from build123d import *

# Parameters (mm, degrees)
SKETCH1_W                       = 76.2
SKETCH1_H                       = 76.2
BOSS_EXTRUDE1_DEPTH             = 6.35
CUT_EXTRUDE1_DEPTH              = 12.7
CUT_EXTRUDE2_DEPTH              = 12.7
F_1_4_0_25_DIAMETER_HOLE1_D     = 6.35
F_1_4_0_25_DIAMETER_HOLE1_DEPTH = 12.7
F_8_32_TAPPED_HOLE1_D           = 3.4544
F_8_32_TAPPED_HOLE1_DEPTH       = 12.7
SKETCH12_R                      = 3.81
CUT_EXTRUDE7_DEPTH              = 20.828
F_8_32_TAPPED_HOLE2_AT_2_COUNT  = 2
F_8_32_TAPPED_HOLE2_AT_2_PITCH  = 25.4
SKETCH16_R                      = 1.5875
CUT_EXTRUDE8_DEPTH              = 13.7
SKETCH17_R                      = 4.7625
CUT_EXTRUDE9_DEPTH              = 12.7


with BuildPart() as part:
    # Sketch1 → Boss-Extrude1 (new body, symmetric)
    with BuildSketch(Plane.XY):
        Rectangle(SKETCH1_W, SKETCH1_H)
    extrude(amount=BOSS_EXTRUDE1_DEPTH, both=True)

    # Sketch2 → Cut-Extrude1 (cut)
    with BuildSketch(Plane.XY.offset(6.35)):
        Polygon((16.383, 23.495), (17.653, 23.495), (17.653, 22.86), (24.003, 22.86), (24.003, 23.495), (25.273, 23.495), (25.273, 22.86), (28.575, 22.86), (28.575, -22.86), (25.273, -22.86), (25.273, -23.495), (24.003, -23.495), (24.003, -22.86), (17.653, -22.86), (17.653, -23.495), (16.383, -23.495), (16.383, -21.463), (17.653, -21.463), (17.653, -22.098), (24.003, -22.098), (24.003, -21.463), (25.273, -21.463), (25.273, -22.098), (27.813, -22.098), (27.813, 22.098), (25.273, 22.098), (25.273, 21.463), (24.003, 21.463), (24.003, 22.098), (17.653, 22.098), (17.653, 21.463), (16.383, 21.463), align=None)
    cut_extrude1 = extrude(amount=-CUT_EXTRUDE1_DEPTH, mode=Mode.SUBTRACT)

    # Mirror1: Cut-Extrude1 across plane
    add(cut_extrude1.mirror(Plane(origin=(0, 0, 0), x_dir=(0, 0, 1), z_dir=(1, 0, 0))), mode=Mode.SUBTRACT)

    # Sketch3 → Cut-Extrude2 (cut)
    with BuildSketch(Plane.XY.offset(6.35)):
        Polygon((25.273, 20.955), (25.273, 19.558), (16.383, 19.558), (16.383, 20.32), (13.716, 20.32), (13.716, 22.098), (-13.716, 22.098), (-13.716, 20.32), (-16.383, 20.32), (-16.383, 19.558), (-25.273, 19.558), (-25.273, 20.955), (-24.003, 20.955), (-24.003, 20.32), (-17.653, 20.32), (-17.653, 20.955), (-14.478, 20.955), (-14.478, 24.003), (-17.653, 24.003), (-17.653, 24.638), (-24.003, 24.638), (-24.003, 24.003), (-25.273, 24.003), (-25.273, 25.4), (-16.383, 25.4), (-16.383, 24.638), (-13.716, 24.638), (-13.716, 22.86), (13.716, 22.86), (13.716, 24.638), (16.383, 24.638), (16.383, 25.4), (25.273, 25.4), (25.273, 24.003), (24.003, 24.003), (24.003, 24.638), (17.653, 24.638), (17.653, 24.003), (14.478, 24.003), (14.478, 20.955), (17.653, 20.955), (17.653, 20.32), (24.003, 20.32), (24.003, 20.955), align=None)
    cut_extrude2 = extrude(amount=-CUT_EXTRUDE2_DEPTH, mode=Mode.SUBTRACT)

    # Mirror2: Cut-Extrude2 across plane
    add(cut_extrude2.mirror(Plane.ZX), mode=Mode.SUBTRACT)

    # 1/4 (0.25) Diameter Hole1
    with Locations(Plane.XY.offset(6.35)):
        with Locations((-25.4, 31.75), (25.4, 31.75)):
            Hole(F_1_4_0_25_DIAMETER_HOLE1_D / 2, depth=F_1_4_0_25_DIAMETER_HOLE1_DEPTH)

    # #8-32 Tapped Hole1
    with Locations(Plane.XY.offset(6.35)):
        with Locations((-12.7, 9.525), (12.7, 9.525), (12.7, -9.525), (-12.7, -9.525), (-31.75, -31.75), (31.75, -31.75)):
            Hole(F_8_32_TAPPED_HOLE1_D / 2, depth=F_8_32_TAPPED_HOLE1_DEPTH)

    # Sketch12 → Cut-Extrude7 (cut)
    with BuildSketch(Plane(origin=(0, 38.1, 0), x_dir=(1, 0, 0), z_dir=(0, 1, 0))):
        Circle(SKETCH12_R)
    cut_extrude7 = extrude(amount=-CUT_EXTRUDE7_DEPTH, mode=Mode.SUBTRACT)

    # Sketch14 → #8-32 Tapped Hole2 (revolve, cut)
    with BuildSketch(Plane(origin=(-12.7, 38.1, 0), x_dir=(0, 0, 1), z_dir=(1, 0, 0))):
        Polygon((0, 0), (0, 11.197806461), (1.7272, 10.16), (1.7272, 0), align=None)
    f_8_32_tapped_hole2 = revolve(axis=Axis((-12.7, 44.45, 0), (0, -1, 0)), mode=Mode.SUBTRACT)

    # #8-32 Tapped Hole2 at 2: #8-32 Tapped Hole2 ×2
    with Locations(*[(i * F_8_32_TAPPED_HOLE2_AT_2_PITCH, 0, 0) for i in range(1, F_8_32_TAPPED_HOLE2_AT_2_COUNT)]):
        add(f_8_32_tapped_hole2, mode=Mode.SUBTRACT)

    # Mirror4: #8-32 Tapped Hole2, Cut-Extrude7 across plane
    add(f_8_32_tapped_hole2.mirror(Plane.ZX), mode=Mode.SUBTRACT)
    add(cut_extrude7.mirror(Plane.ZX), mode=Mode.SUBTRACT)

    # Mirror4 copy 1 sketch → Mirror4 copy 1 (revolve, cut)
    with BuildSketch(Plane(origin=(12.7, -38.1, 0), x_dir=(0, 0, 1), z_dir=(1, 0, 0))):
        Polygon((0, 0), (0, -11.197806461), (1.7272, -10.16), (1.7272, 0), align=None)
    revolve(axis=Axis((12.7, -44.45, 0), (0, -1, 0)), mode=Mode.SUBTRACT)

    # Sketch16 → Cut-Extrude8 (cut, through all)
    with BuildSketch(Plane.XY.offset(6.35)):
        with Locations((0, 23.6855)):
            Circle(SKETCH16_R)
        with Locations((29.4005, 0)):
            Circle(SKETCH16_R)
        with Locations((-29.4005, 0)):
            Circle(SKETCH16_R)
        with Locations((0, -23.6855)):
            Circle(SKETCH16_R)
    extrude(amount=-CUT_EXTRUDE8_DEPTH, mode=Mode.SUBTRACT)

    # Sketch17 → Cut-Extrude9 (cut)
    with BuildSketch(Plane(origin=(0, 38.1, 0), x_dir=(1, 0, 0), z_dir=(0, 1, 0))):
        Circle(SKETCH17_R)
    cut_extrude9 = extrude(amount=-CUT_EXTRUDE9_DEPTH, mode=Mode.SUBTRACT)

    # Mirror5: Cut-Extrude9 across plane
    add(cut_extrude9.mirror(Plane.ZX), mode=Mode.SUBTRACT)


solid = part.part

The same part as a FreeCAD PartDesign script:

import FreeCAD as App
import Part
import Sketcher

V = App.Vector
Q = App.Units.Quantity

doc = App.newDocument("Part")
body = doc.addObject("PartDesign::Body", "Body")

# Sketch on XY plane
sketch1 = doc.addObject("Sketcher::SketchObject", "Sketch")
body.addObject(sketch1)
sketch1.AttachmentSupport = (doc.XY_Plane, [""])
sketch1.MapMode = "FlatFace"
sketch1.addGeometry([
    Part.LineSegment(V(-38, 38, 0), V(-38, -38, 0)),
    Part.LineSegment(V(-38, -38, 0), V(38, -38, 0)),
    Part.LineSegment(V(38, -38, 0), V(38, 38, 0)),
    Part.LineSegment(V(38, 38, 0), V(-38, 38, 0)),
], False)
sketch1.addConstraint([
    Sketcher.Constraint("Coincident", 0, 2, 1, 1),
    Sketcher.Constraint("Coincident", 1, 2, 2, 1),
    Sketcher.Constraint("Coincident", 2, 2, 3, 1),
    Sketcher.Constraint("Coincident", 3, 2, 0, 1),
    Sketcher.Constraint("Vertical", 0),
    Sketcher.Constraint("Horizontal", 1),
    Sketcher.Constraint("Vertical", 2),
    Sketcher.Constraint("Horizontal", 3),
    Sketcher.Constraint("Symmetric", 0, 2, 2, 2, -1, 1),
    Sketcher.Constraint("Equal", 3, 0),
    Sketcher.Constraint("DistanceX", 1, 1, 1, 2, Q("3 in")),
])
pad1 = doc.addObject("PartDesign::Pad", "Pad")
body.addObject(pad1)
pad1.Profile = sketch1
pad1.Length = Q("0.5 in")
pad1.Midplane = True

# Sketch on XY plane
sketch2 = doc.addObject("Sketcher::SketchObject", "Sketch001")
body.addObject(sketch2)
sketch2.AttachmentSupport = (doc.XY_Plane, [""])
sketch2.MapMode = "FlatFace"
sketch2.AttachmentOffset = App.Placement(V(0, 0, 0.25 * 25.4), App.Rotation())
sketch2.addGeometry([
    Part.LineSegment(V(17.7, 23.5, 0), V(16.4, 23.5, 0)),  # 0
    Part.LineSegment(V(16.4, 23.5, 0), V(16.4, 21.5, 0)),  # 1
    Part.LineSegment(V(16.4, 21.5, 0), V(17.7, 21.5, 0)),  # 2
    Part.LineSegment(V(17.7, 21.5, 0), V(17.7, 22.1, 0)),  # 3
    Part.LineSegment(V(17.7, 22.1, 0), V(24, 22.1, 0)),  # 4
    Part.LineSegment(V(24, 22.1, 0), V(24, 21.5, 0)),  # 5
    Part.LineSegment(V(24, 21.5, 0), V(25.3, 21.5, 0)),  # 6
    Part.LineSegment(V(25.3, 21.5, 0), V(25.3, 22.1, 0)),  # 7
    Part.LineSegment(V(25.3, 22.1, 0), V(27.8, 22.1, 0)),  # 8
    Part.LineSegment(V(27.8, 22.1, 0), V(27.8, -22.1, 0)),  # 9
    Part.LineSegment(V(27.8, -22.1, 0), V(25.3, -22.1, 0)),  # 10
    Part.LineSegment(V(25.3, -22.1, 0), V(25.3, -21.5, 0)),  # 11
    Part.LineSegment(V(25.3, -21.5, 0), V(24, -21.5, 0)),  # 12
    Part.LineSegment(V(24, -21.5, 0), V(24, -22.1, 0)),  # 13
    Part.LineSegment(V(24, -22.1, 0), V(17.7, -22.1, 0)),  # 14
    Part.LineSegment(V(17.7, -22.1, 0), V(17.7, -21.5, 0)),  # 15
    Part.LineSegment(V(17.7, -21.5, 0), V(16.4, -21.5, 0)),  # 16
    Part.LineSegment(V(16.4, -21.5, 0), V(16.4, -23.5, 0)),  # 17
    Part.LineSegment(V(16.4, -23.5, 0), V(17.7, -23.5, 0)),  # 18
    Part.LineSegment(V(17.7, -23.5, 0), V(17.7, -22.9, 0)),  # 19
    Part.LineSegment(V(17.7, -22.9, 0), V(24, -22.9, 0)),  # 20
    Part.LineSegment(V(24, -22.9, 0), V(24, -23.5, 0)),  # 21
    Part.LineSegment(V(24, -23.5, 0), V(25.3, -23.5, 0)),  # 22
    Part.LineSegment(V(25.3, -23.5, 0), V(25.3, -22.9, 0)),  # 23
    Part.LineSegment(V(25.3, -22.9, 0), V(28.6, -22.9, 0)),  # 24
    Part.LineSegment(V(28.6, -22.9, 0), V(28.6, 22.9, 0)),  # 25
    Part.LineSegment(V(28.6, 22.9, 0), V(25.3, 22.9, 0)),  # 26
    Part.LineSegment(V(25.3, 22.9, 0), V(25.3, 23.5, 0)),  # 27
    Part.LineSegment(V(25.3, 23.5, 0), V(24, 23.5, 0)),  # 28
    Part.LineSegment(V(24, 23.5, 0), V(24, 22.9, 0)),  # 29
    Part.LineSegment(V(24, 22.9, 0), V(17.7, 22.9, 0)),  # 30
    Part.LineSegment(V(17.7, 22.9, 0), V(17.7, 23.5, 0)),  # 31
], False)
sketch2.addConstraint([
    Sketcher.Constraint("Coincident", 0, 2, 1, 1),
    Sketcher.Constraint("Coincident", 1, 2, 2, 1),
    Sketcher.Constraint("Coincident", 2, 2, 3, 1),
    Sketcher.Constraint("Coincident", 3, 2, 4, 1),
    Sketcher.Constraint("Coincident", 4, 2, 5, 1),
    Sketcher.Constraint("Coincident", 5, 2, 6, 1),
    Sketcher.Constraint("Coincident", 6, 2, 7, 1),
    Sketcher.Constraint("Coincident", 7, 2, 8, 1),
    Sketcher.Constraint("Coincident", 8, 2, 9, 1),
    Sketcher.Constraint("Coincident", 9, 2, 10, 1),
    Sketcher.Constraint("Coincident", 10, 2, 11, 1),
    Sketcher.Constraint("Coincident", 11, 2, 12, 1),
    Sketcher.Constraint("Coincident", 12, 2, 13, 1),
    Sketcher.Constraint("Coincident", 13, 2, 14, 1),
    Sketcher.Constraint("Coincident", 14, 2, 15, 1),
    Sketcher.Constraint("Coincident", 15, 2, 16, 1),
    Sketcher.Constraint("Coincident", 16, 2, 17, 1),
    Sketcher.Constraint("Coincident", 17, 2, 18, 1),
    Sketcher.Constraint("Coincident", 18, 2, 19, 1),
    Sketcher.Constraint("Coincident", 19, 2, 20, 1),
    Sketcher.Constraint("Coincident", 20, 2, 21, 1),
    Sketcher.Constraint("Coincident", 21, 2, 22, 1),
    Sketcher.Constraint("Coincident", 22, 2, 23, 1),
    Sketcher.Constraint("Coincident", 23, 2, 24, 1),
    Sketcher.Constraint("Coincident", 24, 2, 25, 1),
    Sketcher.Constraint("Coincident", 25, 2, 26, 1),
    Sketcher.Constraint("Coincident", 26, 2, 27, 1),
    Sketcher.Constraint("Coincident", 27, 2, 28, 1),
    Sketcher.Constraint("Coincident", 28, 2, 29, 1),
    Sketcher.Constraint("Coincident", 29, 2, 30, 1),
    Sketcher.Constraint("Coincident", 30, 2, 31, 1),
    Sketcher.Constraint("Coincident", 31, 2, 0, 1),
    Sketcher.Constraint("Horizontal", 0),
    Sketcher.Constraint("Vertical", 1),
    Sketcher.Constraint("Horizontal", 2),
    Sketcher.Constraint("Vertical", 3),
    Sketcher.Constraint("Horizontal", 4),
    Sketcher.Constraint("Vertical", 5),
    Sketcher.Constraint("Horizontal", 6),
    Sketcher.Constraint("Vertical", 7),
    Sketcher.Constraint("Horizontal", 8),
    Sketcher.Constraint("Vertical", 9),
    Sketcher.Constraint("Horizontal", 10),
    Sketcher.Constraint("Vertical", 11),
    Sketcher.Constraint("Horizontal", 12),
    Sketcher.Constraint("Vertical", 13),
    Sketcher.Constraint("Horizontal", 14),
    Sketcher.Constraint("Vertical", 15),
    Sketcher.Constraint("Horizontal", 16),
    Sketcher.Constraint("Vertical", 17),
    Sketcher.Constraint("Horizontal", 18),
    Sketcher.Constraint("Vertical", 19),
    Sketcher.Constraint("Horizontal", 20),
    Sketcher.Constraint("Vertical", 21),
    Sketcher.Constraint("Horizontal", 22),
    Sketcher.Constraint("Vertical", 23),
    Sketcher.Constraint("Horizontal", 24),
    Sketcher.Constraint("Vertical", 25),
    Sketcher.Constraint("Horizontal", 26),
    Sketcher.Constraint("Vertical", 27),
    Sketcher.Constraint("Horizontal", 28),
    Sketcher.Constraint("Vertical", 29),
    Sketcher.Constraint("Horizontal", 30),
    Sketcher.Constraint("Vertical", 31),
    Sketcher.Constraint("Symmetric", 7, 2, 10, 2, -1),
    Sketcher.Constraint("Symmetric", 5, 2, 12, 2, -1),
    Sketcher.Constraint("Symmetric", 3, 2, 14, 2, -1),
    Sketcher.Constraint("Symmetric", 1, 2, 16, 2, -1),
    Sketcher.Constraint("Symmetric", 23, 2, 26, 2, -1),
    Sketcher.Constraint("Symmetric", 21, 2, 28, 2, -1),
    Sketcher.Constraint("Symmetric", 19, 2, 30, 2, -1),
    Sketcher.Constraint("Horizontal", 2, 2, 5, 2),
    Sketcher.Constraint("Horizontal", 4, 2, 7, 2),
    Sketcher.Constraint("Horizontal", 18, 2, 21, 2),
    Sketcher.Constraint("Horizontal", 20, 2, 23, 2),
    Sketcher.Constraint("Horizontal", 0, 2, 27, 2),
    Sketcher.Constraint("Vertical", 15, 2, 18, 2),
    Sketcher.Constraint("Vertical", 13, 2, 20, 2),
    Sketcher.Constraint("Vertical", 11, 2, 22, 2),
    Sketcher.Constraint("Equal", 2, 6),
    Sketcher.Constraint("Equal", 15, 19),
    Sketcher.Constraint("DistanceX", 8, 1, 8, 2, Q("0.1 in")),
    Sketcher.Constraint("DistanceY", 25, 1, 25, 2, Q("1.8 in")),
    Sketcher.Constraint("DistanceX", 0, 2, 0, 1, Q("0.05 in")),
    Sketcher.Constraint("DistanceX", 4, 1, 4, 2, Q("0.25 in")),
    Sketcher.Constraint("DistanceX", 24, 1, 24, 2, Q("0.13 in")),
    Sketcher.Constraint("DistanceY", 1, 2, 1, 1, Q("0.08 in")),
    Sketcher.Constraint("DistanceY", 9, 2, 9, 1, Q("1.74 in")),
    Sketcher.Constraint("DistanceX", -1, 1, 0, 2, Q("0.645 in")),
])
pocket1 = doc.addObject("PartDesign::Pocket", "Pocket")
body.addObject(pocket1)
pocket1.Profile = sketch2
pocket1.Length = Q("0.5 in")
doc.recompute()

mirrored = doc.addObject("PartDesign::Mirrored", "Mirrored")
body.addObject(mirrored)
mirrored.Originals = [pocket1]
mirrored.MirrorPlane = (doc.YZ_Plane, [""])
body.Tip = mirrored

# Sketch on XY plane
sketch3 = doc.addObject("Sketcher::SketchObject", "Sketch002")
body.addObject(sketch3)
sketch3.AttachmentSupport = (doc.XY_Plane, [""])
sketch3.MapMode = "FlatFace"
sketch3.AttachmentOffset = App.Placement(V(0, 0, 0.25 * 25.4), App.Rotation())
sketch3.addGeometry([
    Part.LineSegment(V(25.3, 19.6, 0), V(25.3, 21, 0)),  # 0
    Part.LineSegment(V(25.3, 21, 0), V(24, 21, 0)),  # 1
    Part.LineSegment(V(24, 21, 0), V(24, 20.3, 0)),  # 2
    Part.LineSegment(V(24, 20.3, 0), V(17.7, 20.3, 0)),  # 3
    Part.LineSegment(V(17.7, 20.3, 0), V(17.7, 21, 0)),  # 4
    Part.LineSegment(V(17.7, 21, 0), V(14.5, 21, 0)),  # 5
    Part.LineSegment(V(14.5, 21, 0), V(14.5, 24, 0)),  # 6
    Part.LineSegment(V(14.5, 24, 0), V(17.7, 24, 0)),  # 7
    Part.LineSegment(V(17.7, 24, 0), V(17.7, 24.6, 0)),  # 8
    Part.LineSegment(V(17.7, 24.6, 0), V(24, 24.6, 0)),  # 9
    Part.LineSegment(V(24, 24.6, 0), V(24, 24, 0)),  # 10
    Part.LineSegment(V(24, 24, 0), V(25.3, 24, 0)),  # 11
    Part.LineSegment(V(25.3, 24, 0), V(25.3, 25.4, 0)),  # 12
    Part.LineSegment(V(25.3, 25.4, 0), V(16.4, 25.4, 0)),  # 13
    Part.LineSegment(V(16.4, 25.4, 0), V(16.4, 24.6, 0)),  # 14
    Part.LineSegment(V(16.4, 24.6, 0), V(13.7, 24.6, 0)),  # 15
    Part.LineSegment(V(13.7, 24.6, 0), V(13.7, 22.9, 0)),  # 16
    Part.LineSegment(V(13.7, 22.9, 0), V(-13.7, 22.9, 0)),  # 17
    Part.LineSegment(V(-13.7, 22.9, 0), V(-13.7, 24.6, 0)),  # 18
    Part.LineSegment(V(-13.7, 24.6, 0), V(-16.4, 24.6, 0)),  # 19
    Part.LineSegment(V(-16.4, 24.6, 0), V(-16.4, 25.4, 0)),  # 20
    Part.LineSegment(V(-16.4, 25.4, 0), V(-25.3, 25.4, 0)),  # 21
    Part.LineSegment(V(-25.3, 25.4, 0), V(-25.3, 24, 0)),  # 22
    Part.LineSegment(V(-25.3, 24, 0), V(-24, 24, 0)),  # 23
    Part.LineSegment(V(-24, 24, 0), V(-24, 24.6, 0)),  # 24
    Part.LineSegment(V(-24, 24.6, 0), V(-17.7, 24.6, 0)),  # 25
    Part.LineSegment(V(-17.7, 24.6, 0), V(-17.7, 24, 0)),  # 26
    Part.LineSegment(V(-17.7, 24, 0), V(-14.5, 24, 0)),  # 27
    Part.LineSegment(V(-14.5, 24, 0), V(-14.5, 21, 0)),  # 28
    Part.LineSegment(V(-14.5, 21, 0), V(-17.7, 21, 0)),  # 29
    Part.LineSegment(V(-17.7, 21, 0), V(-17.7, 20.3, 0)),  # 30
    Part.LineSegment(V(-17.7, 20.3, 0), V(-24, 20.3, 0)),  # 31
    Part.LineSegment(V(-24, 20.3, 0), V(-24, 21, 0)),  # 32
    Part.LineSegment(V(-24, 21, 0), V(-25.3, 21, 0)),  # 33
    Part.LineSegment(V(-25.3, 21, 0), V(-25.3, 19.6, 0)),  # 34
    Part.LineSegment(V(-25.3, 19.6, 0), V(-16.4, 19.6, 0)),  # 35
    Part.LineSegment(V(-16.4, 19.6, 0), V(-16.4, 20.3, 0)),  # 36
    Part.LineSegment(V(-16.4, 20.3, 0), V(-13.7, 20.3, 0)),  # 37
    Part.LineSegment(V(-13.7, 20.3, 0), V(-13.7, 22.1, 0)),  # 38
    Part.LineSegment(V(-13.7, 22.1, 0), V(13.7, 22.1, 0)),  # 39
    Part.LineSegment(V(13.7, 22.1, 0), V(13.7, 20.3, 0)),  # 40
    Part.LineSegment(V(13.7, 20.3, 0), V(16.4, 20.3, 0)),  # 41
    Part.LineSegment(V(16.4, 20.3, 0), V(16.4, 19.6, 0)),  # 42
    Part.LineSegment(V(16.4, 19.6, 0), V(25.3, 19.6, 0)),  # 43
], False)
sketch3.addConstraint([
    Sketcher.Constraint("Coincident", 0, 2, 1, 1),
    Sketcher.Constraint("Coincident", 1, 2, 2, 1),
    Sketcher.Constraint("Coincident", 2, 2, 3, 1),
    Sketcher.Constraint("Coincident", 3, 2, 4, 1),
    Sketcher.Constraint("Coincident", 4, 2, 5, 1),
    Sketcher.Constraint("Coincident", 5, 2, 6, 1),
    Sketcher.Constraint("Coincident", 6, 2, 7, 1),
    Sketcher.Constraint("Coincident", 7, 2, 8, 1),
    Sketcher.Constraint("Coincident", 8, 2, 9, 1),
    Sketcher.Constraint("Coincident", 9, 2, 10, 1),
    Sketcher.Constraint("Coincident", 10, 2, 11, 1),
    Sketcher.Constraint("Coincident", 11, 2, 12, 1),
    Sketcher.Constraint("Coincident", 12, 2, 13, 1),
    Sketcher.Constraint("Coincident", 13, 2, 14, 1),
    Sketcher.Constraint("Coincident", 14, 2, 15, 1),
    Sketcher.Constraint("Coincident", 15, 2, 16, 1),
    Sketcher.Constraint("Coincident", 16, 2, 17, 1),
    Sketcher.Constraint("Coincident", 17, 2, 18, 1),
    Sketcher.Constraint("Coincident", 18, 2, 19, 1),
    Sketcher.Constraint("Coincident", 19, 2, 20, 1),
    Sketcher.Constraint("Coincident", 20, 2, 21, 1),
    Sketcher.Constraint("Coincident", 21, 2, 22, 1),
    Sketcher.Constraint("Coincident", 22, 2, 23, 1),
    Sketcher.Constraint("Coincident", 23, 2, 24, 1),
    Sketcher.Constraint("Coincident", 24, 2, 25, 1),
    Sketcher.Constraint("Coincident", 25, 2, 26, 1),
    Sketcher.Constraint("Coincident", 26, 2, 27, 1),
    Sketcher.Constraint("Coincident", 27, 2, 28, 1),
    Sketcher.Constraint("Coincident", 28, 2, 29, 1),
    Sketcher.Constraint("Coincident", 29, 2, 30, 1),
    Sketcher.Constraint("Coincident", 30, 2, 31, 1),
    Sketcher.Constraint("Coincident", 31, 2, 32, 1),
    Sketcher.Constraint("Coincident", 32, 2, 33, 1),
    Sketcher.Constraint("Coincident", 33, 2, 34, 1),
    Sketcher.Constraint("Coincident", 34, 2, 35, 1),
    Sketcher.Constraint("Coincident", 35, 2, 36, 1),
    Sketcher.Constraint("Coincident", 36, 2, 37, 1),
    Sketcher.Constraint("Coincident", 37, 2, 38, 1),
    Sketcher.Constraint("Coincident", 38, 2, 39, 1),
    Sketcher.Constraint("Coincident", 39, 2, 40, 1),
    Sketcher.Constraint("Coincident", 40, 2, 41, 1),
    Sketcher.Constraint("Coincident", 41, 2, 42, 1),
    Sketcher.Constraint("Coincident", 42, 2, 43, 1),
    Sketcher.Constraint("Coincident", 43, 2, 0, 1),
    Sketcher.Constraint("Vertical", 0),
    Sketcher.Constraint("Horizontal", 1),
    Sketcher.Constraint("Vertical", 2),
    Sketcher.Constraint("Horizontal", 3),
    Sketcher.Constraint("Vertical", 4),
    Sketcher.Constraint("Horizontal", 5),
    Sketcher.Constraint("Vertical", 6),
    Sketcher.Constraint("Horizontal", 7),
    Sketcher.Constraint("Vertical", 8),
    Sketcher.Constraint("Horizontal", 9),
    Sketcher.Constraint("Vertical", 10),
    Sketcher.Constraint("Horizontal", 11),
    Sketcher.Constraint("Vertical", 12),
    Sketcher.Constraint("Horizontal", 13),
    Sketcher.Constraint("Vertical", 14),
    Sketcher.Constraint("Horizontal", 15),
    Sketcher.Constraint("Vertical", 16),
    Sketcher.Constraint("Horizontal", 17),
    Sketcher.Constraint("Vertical", 18),
    Sketcher.Constraint("Horizontal", 19),
    Sketcher.Constraint("Vertical", 20),
    Sketcher.Constraint("Horizontal", 21),
    Sketcher.Constraint("Vertical", 22),
    Sketcher.Constraint("Horizontal", 23),
    Sketcher.Constraint("Vertical", 24),
    Sketcher.Constraint("Horizontal", 25),
    Sketcher.Constraint("Vertical", 26),
    Sketcher.Constraint("Horizontal", 27),
    Sketcher.Constraint("Vertical", 28),
    Sketcher.Constraint("Horizontal", 29),
    Sketcher.Constraint("Vertical", 30),
    Sketcher.Constraint("Horizontal", 31),
    Sketcher.Constraint("Vertical", 32),
    Sketcher.Constraint("Horizontal", 33),
    Sketcher.Constraint("Vertical", 34),
    Sketcher.Constraint("Horizontal", 35),
    Sketcher.Constraint("Vertical", 36),
    Sketcher.Constraint("Horizontal", 37),
    Sketcher.Constraint("Vertical", 38),
    Sketcher.Constraint("Horizontal", 39),
    Sketcher.Constraint("Vertical", 40),
    Sketcher.Constraint("Horizontal", 41),
    Sketcher.Constraint("Vertical", 42),
    Sketcher.Constraint("Horizontal", 43),
    Sketcher.Constraint("Symmetric", 15, 2, 18, 2, -2),
    Sketcher.Constraint("Symmetric", 13, 2, 20, 2, -2),
    Sketcher.Constraint("Symmetric", 11, 2, 22, 2, -2),
    Sketcher.Constraint("Symmetric", 9, 2, 24, 2, -2),
    Sketcher.Constraint("Symmetric", 7, 2, 26, 2, -2),
    Sketcher.Constraint("Symmetric", 5, 2, 28, 2, -2),
    Sketcher.Constraint("Symmetric", 3, 2, 30, 2, -2),
    Sketcher.Constraint("Symmetric", 1, 2, 32, 2, -2),
    Sketcher.Constraint("Symmetric", 37, 2, 40, 2, -2),
    Sketcher.Constraint("Symmetric", 35, 2, 42, 2, -2),
    Sketcher.Constraint("Horizontal", 1, 2, 4, 2),
    Sketcher.Constraint("Horizontal", 7, 2, 10, 2),
    Sketcher.Constraint("Horizontal", 9, 2, 14, 2),
    Sketcher.Constraint("Horizontal", 31, 2, 36, 2),
    Sketcher.Constraint("Vertical", 4, 2, 7, 2),
    Sketcher.Constraint("Vertical", 2, 2, 9, 2),
    Sketcher.Constraint("Vertical", 0, 2, 11, 2),
    Sketcher.Constraint("Vertical", 22, 2, 33, 2),
    Sketcher.Constraint("Vertical", 20, 2, 35, 2),
    Sketcher.Constraint("Vertical", 18, 2, 37, 2),
    Sketcher.Constraint("Equal", 4, 8),
    Sketcher.Constraint("Equal", 0, 12),
    Sketcher.Constraint("Equal", 18, 38),
    Sketcher.Constraint("DistanceY", -1, 1, 12, 2, Q("1 in")),
    Sketcher.Constraint("DistanceX", 1, 2, 1, 1, Q("0.05 in")),
    Sketcher.Constraint("DistanceX", 3, 2, 3, 1, Q("0.25 in")),
    Sketcher.Constraint("DistanceX", 13, 2, 13, 1, Q("0.35 in")),
    Sketcher.Constraint("DistanceX", 17, 2, 17, 1, Q("1.08 in")),
    Sketcher.Constraint("DistanceY", 6, 1, 6, 2, Q("0.12 in")),
    Sketcher.Constraint("DistanceY", 14, 2, 14, 1, Q("0.03 in")),
    Sketcher.Constraint("DistanceY", 16, 2, 16, 1, Q("0.07 in")),
    Sketcher.Constraint("DistanceY", -1, 1, 2, 2, Q("0.8 in")),
    Sketcher.Constraint("DistanceX", 5, 2, 5, 1, Q("0.125 in")),
    Sketcher.Constraint("DistanceX", 15, 2, 15, 1, Q("0.105 in")),
])
pocket2 = doc.addObject("PartDesign::Pocket", "Pocket001")
body.addObject(pocket2)
pocket2.Profile = sketch3
pocket2.Length = Q("0.5 in")
doc.recompute()

mirrored2 = doc.addObject("PartDesign::Mirrored", "Mirrored001")
body.addObject(mirrored2)
mirrored2.Originals = [pocket2]
mirrored2.MirrorPlane = (doc.XZ_Plane, [""])
body.Tip = mirrored2

# Sketch on XY plane
sketch4 = doc.addObject("Sketcher::SketchObject", "Sketch003")
body.addObject(sketch4)
sketch4.AttachmentSupport = (doc.XY_Plane, [""])
sketch4.MapMode = "FlatFace"
sketch4.AttachmentOffset = App.Placement(V(0, 0, 0.25 * 25.4), App.Rotation())
sketch4.addGeometry([
    Part.Circle(V(-25.4, 31.8, 0), V(0, 0, 1), 3.2),
    Part.Circle(V(25.4, 31.8, 0), V(0, 0, 1), 3.2),
], False)
sketch4.addConstraint([
    Sketcher.Constraint("Equal", 0, 1),
    Sketcher.Constraint("Symmetric", 0, 3, 1, 3, -2),
    Sketcher.Constraint("Diameter", 0, Q("0.25 in")),
    Sketcher.Constraint("DistanceX", 0, 3, -1, 1, Q("1 in")),
    Sketcher.Constraint("DistanceY", -1, 1, 0, 3, Q("1.25 in")),
])
doc.recompute()
hole = doc.addObject("PartDesign::Hole", "Hole")
body.addObject(hole)
hole.Profile = sketch4
hole.ThreadType = "None"
hole.Diameter = Q("0.25 in")
hole.DepthType = "Dimension"
hole.Depth = Q("0.5 in")
hole.DrillPoint = "Flat"

# Sketch on XY plane
sketch5 = doc.addObject("Sketcher::SketchObject", "Sketch004")
body.addObject(sketch5)
sketch5.AttachmentSupport = (doc.XY_Plane, [""])
sketch5.MapMode = "FlatFace"
sketch5.AttachmentOffset = App.Placement(V(0, 0, 0.25 * 25.4), App.Rotation())
sketch5.addGeometry([
    Part.Circle(V(-12.7, 9.5, 0), V(0, 0, 1), 1.7),  # 0
    Part.Circle(V(12.7, 9.5, 0), V(0, 0, 1), 1.7),  # 1
    Part.Circle(V(12.7, -9.5, 0), V(0, 0, 1), 1.7),  # 2
    Part.Circle(V(-12.7, -9.5, 0), V(0, 0, 1), 1.7),  # 3
    Part.Circle(V(-31.8, -31.8, 0), V(0, 0, 1), 1.7),  # 4
    Part.Circle(V(31.8, -31.8, 0), V(0, 0, 1), 1.7),  # 5
], False)
sketch5.addConstraint([
    Sketcher.Constraint("Equal", 0, 1),
    Sketcher.Constraint("Equal", 1, 2),
    Sketcher.Constraint("Equal", 2, 3),
    Sketcher.Constraint("Equal", 3, 4),
    Sketcher.Constraint("Equal", 4, 5),
    Sketcher.Constraint("Symmetric", 0, 3, 2, 3, -1, 1),
    Sketcher.Constraint("Symmetric", 1, 3, 3, 3, -1, 1),
    Sketcher.Constraint("Symmetric", 0, 3, 1, 3, -2),
    Sketcher.Constraint("Symmetric", 4, 3, 5, 3, -2),
    Sketcher.Constraint("Diameter", 0, Q("0.136 in")),
    Sketcher.Constraint("DistanceX", 0, 3, 1, 3, Q("1 in")),
    Sketcher.Constraint("DistanceX", 4, 3, 5, 3, Q("2.5 in")),
    Sketcher.Constraint("DistanceY", 4, 3, -1, 1, Q("1.25 in")),
    Sketcher.Constraint("DistanceY", 2, 3, 1, 3, Q("0.75 in")),
])
doc.recompute()
hole2 = doc.addObject("PartDesign::Hole", "Hole001")
body.addObject(hole2)
hole2.Profile = sketch5
hole2.ThreadType = "None"
hole2.Diameter = Q("0.136 in")
hole2.DepthType = "Dimension"
hole2.Depth = Q("0.5 in")
hole2.DrillPoint = "Flat"

# Sketch on XZ plane
sketch6 = doc.addObject("Sketcher::SketchObject", "Sketch005")
body.addObject(sketch6)
sketch6.AttachmentSupport = (doc.XZ_Plane, [""])
sketch6.MapMode = "FlatFace"
sketch6.AttachmentOffset = App.Placement(V(0, 0, -1.5 * 25.4), App.Rotation())
sketch6.addGeometry(Part.Circle(V(0, 0, 0), V(0, 0, 1), 3.8), False)
sketch6.addConstraint([
    Sketcher.Constraint("Coincident", 0, 3, -1, 1),
    Sketcher.Constraint("Diameter", 0, Q("0.3 in")),
])
pocket3 = doc.addObject("PartDesign::Pocket", "Pocket002")
body.addObject(pocket3)
pocket3.Profile = sketch6
pocket3.Length = Q("0.82 in")
pocket3.Reversed = True

# Sketch on YZ plane
sketch7 = doc.addObject("Sketcher::SketchObject", "Sketch006")
body.addObject(sketch7)
sketch7.AttachmentSupport = (doc.YZ_Plane, [""])
sketch7.MapMode = "FlatFace"
sketch7.AttachmentOffset = App.Placement(V(0, 0, -0.5 * 25.4), App.Rotation())
sketch7.addGeometry([
    Part.LineSegment(V(26.9, 0, 0), V(38.1, 0, 0)),
    Part.LineSegment(V(38.1, 0, 0), V(38.1, 1.7, 0)),
    Part.LineSegment(V(38.1, 1.7, 0), V(27.9, 1.7, 0)),
    Part.LineSegment(V(27.9, 1.7, 0), V(26.9, 0, 0)),
], False)
sketch7.addConstraint([
    Sketcher.Constraint("Coincident", 0, 2, 1, 1),
    Sketcher.Constraint("Coincident", 1, 2, 2, 1),
    Sketcher.Constraint("Coincident", 2, 2, 3, 1),
    Sketcher.Constraint("Coincident", 3, 2, 0, 1),
    Sketcher.Constraint("Horizontal", 0),
    Sketcher.Constraint("Vertical", 1),
    Sketcher.Constraint("Horizontal", 2),
    Sketcher.Constraint("PointOnObject", 0, 2, -1),
    Sketcher.Constraint("DistanceX", 2, 2, 2, 1, Q("0.4 in")),
    Sketcher.Constraint("Angle", 3, Q("-121 deg")),
    Sketcher.Constraint("DistanceX", -1, 1, 0, 2, Q("1.5 in")),
    Sketcher.Constraint("DistanceY", 1, 1, 1, 2, Q("0.068 in")),
])
groove = doc.addObject("PartDesign::Groove", "Groove")
body.addObject(groove)
groove.Profile = sketch7
groove.ReferenceAxis = (sketch7, ["H_Axis"])
groove.Angle = 360
doc.recompute()

linearpattern = doc.addObject("PartDesign::LinearPattern", "LinearPattern")
body.addObject(linearpattern)
linearpattern.Originals = [groove]
linearpattern.Direction = (doc.X_Axis, [""])
linearpattern.Mode = "offset"
linearpattern.Offset = Q("1 in")
linearpattern.Occurrences = 2
body.Tip = linearpattern
doc.recompute()

mirrored3 = doc.addObject("PartDesign::Mirrored", "Mirrored002")
body.addObject(mirrored3)
mirrored3.Originals = [groove, pocket3]
mirrored3.MirrorPlane = (doc.XZ_Plane, [""])
body.Tip = mirrored3

# Sketch on YZ plane
sketch8 = doc.addObject("Sketcher::SketchObject", "Sketch007")
body.addObject(sketch8)
sketch8.AttachmentSupport = (doc.YZ_Plane, [""])
sketch8.MapMode = "FlatFace"
sketch8.AttachmentOffset = App.Placement(V(0, 0, 0.5 * 25.4), App.Rotation())
sketch8.addGeometry([
    Part.LineSegment(V(-38.1, 0, 0), V(-26.9, 0, 0)),
    Part.LineSegment(V(-26.9, 0, 0), V(-27.9, 1.7, 0)),
    Part.LineSegment(V(-27.9, 1.7, 0), V(-38.1, 1.7, 0)),
    Part.LineSegment(V(-38.1, 1.7, 0), V(-38.1, 0, 0)),
], False)
sketch8.addConstraint([
    Sketcher.Constraint("Coincident", 0, 2, 1, 1),
    Sketcher.Constraint("Coincident", 1, 2, 2, 1),
    Sketcher.Constraint("Coincident", 2, 2, 3, 1),
    Sketcher.Constraint("Coincident", 3, 2, 0, 1),
    Sketcher.Constraint("Horizontal", 0),
    Sketcher.Constraint("Horizontal", 2),
    Sketcher.Constraint("Vertical", 3),
    Sketcher.Constraint("PointOnObject", 0, 2, -1),
    Sketcher.Constraint("DistanceX", 2, 2, 2, 1, Q("0.4 in")),
    Sketcher.Constraint("Angle", 1, Q("121 deg")),
    Sketcher.Constraint("DistanceX", 1, 2, -1, 1, Q("1.1 in")),
    Sketcher.Constraint("DistanceY", 3, 2, 3, 1, Q("0.068 in")),
])
groove2 = doc.addObject("PartDesign::Groove", "Groove001")
body.addObject(groove2)
groove2.Profile = sketch8
groove2.ReferenceAxis = (sketch8, ["H_Axis"])
groove2.Angle = 360

# Sketch on XY plane
sketch9 = doc.addObject("Sketcher::SketchObject", "Sketch008")
body.addObject(sketch9)
sketch9.AttachmentSupport = (doc.XY_Plane, [""])
sketch9.MapMode = "FlatFace"
sketch9.AttachmentOffset = App.Placement(V(0, 0, 0.25 * 25.4), App.Rotation())
sketch9.addGeometry([
    Part.Circle(V(0, 23.7, 0), V(0, 0, 1), 1.6),
    Part.Circle(V(29.4, 0, 0), V(0, 0, 1), 1.6),
    Part.Circle(V(-29.4, 0, 0), V(0, 0, 1), 1.6),
    Part.Circle(V(0, -23.7, 0), V(0, 0, 1), 1.6),
], False)
sketch9.addConstraint([
    Sketcher.Constraint("Equal", 0, 1),
    Sketcher.Constraint("Equal", 1, 2),
    Sketcher.Constraint("Equal", 2, 3),
    Sketcher.Constraint("Symmetric", 1, 3, 2, 3, -1, 1),
    Sketcher.Constraint("Symmetric", 0, 3, 3, 3, -1, 1),
    Sketcher.Constraint("PointOnObject", 0, 3, -2),
    Sketcher.Constraint("PointOnObject", 1, 3, -1),
    Sketcher.Constraint("Diameter", 0, Q("0.125 in")),
    Sketcher.Constraint("DistanceX", 2, 3, 1, 3, Q("2.315 in")),
    Sketcher.Constraint("DistanceY", 3, 3, 0, 3, Q("1.865 in")),
])
pocket4 = doc.addObject("PartDesign::Pocket", "Pocket003")
body.addObject(pocket4)
pocket4.Profile = sketch9
pocket4.Type = "ThroughAll"

# Sketch on XZ plane
sketch10 = doc.addObject("Sketcher::SketchObject", "Sketch009")
body.addObject(sketch10)
sketch10.AttachmentSupport = (doc.XZ_Plane, [""])
sketch10.MapMode = "FlatFace"
sketch10.AttachmentOffset = App.Placement(V(0, 0, -1.5 * 25.4), App.Rotation())
sketch10.addGeometry(Part.Circle(V(0, 0, 0), V(0, 0, 1), 4.8), False)
sketch10.addConstraint([
    Sketcher.Constraint("Coincident", 0, 3, -1, 1),
    Sketcher.Constraint("Diameter", 0, Q("0.375 in")),
])
pocket5 = doc.addObject("PartDesign::Pocket", "Pocket004")
body.addObject(pocket5)
pocket5.Profile = sketch10
pocket5.Length = Q("0.5 in")
pocket5.Reversed = True
doc.recompute()

mirrored4 = doc.addObject("PartDesign::Mirrored", "Mirrored003")
body.addObject(mirrored4)
mirrored4.Originals = [pocket5]
mirrored4.MirrorPlane = (doc.XZ_Plane, [""])
body.Tip = mirrored4

doc.recompute()
